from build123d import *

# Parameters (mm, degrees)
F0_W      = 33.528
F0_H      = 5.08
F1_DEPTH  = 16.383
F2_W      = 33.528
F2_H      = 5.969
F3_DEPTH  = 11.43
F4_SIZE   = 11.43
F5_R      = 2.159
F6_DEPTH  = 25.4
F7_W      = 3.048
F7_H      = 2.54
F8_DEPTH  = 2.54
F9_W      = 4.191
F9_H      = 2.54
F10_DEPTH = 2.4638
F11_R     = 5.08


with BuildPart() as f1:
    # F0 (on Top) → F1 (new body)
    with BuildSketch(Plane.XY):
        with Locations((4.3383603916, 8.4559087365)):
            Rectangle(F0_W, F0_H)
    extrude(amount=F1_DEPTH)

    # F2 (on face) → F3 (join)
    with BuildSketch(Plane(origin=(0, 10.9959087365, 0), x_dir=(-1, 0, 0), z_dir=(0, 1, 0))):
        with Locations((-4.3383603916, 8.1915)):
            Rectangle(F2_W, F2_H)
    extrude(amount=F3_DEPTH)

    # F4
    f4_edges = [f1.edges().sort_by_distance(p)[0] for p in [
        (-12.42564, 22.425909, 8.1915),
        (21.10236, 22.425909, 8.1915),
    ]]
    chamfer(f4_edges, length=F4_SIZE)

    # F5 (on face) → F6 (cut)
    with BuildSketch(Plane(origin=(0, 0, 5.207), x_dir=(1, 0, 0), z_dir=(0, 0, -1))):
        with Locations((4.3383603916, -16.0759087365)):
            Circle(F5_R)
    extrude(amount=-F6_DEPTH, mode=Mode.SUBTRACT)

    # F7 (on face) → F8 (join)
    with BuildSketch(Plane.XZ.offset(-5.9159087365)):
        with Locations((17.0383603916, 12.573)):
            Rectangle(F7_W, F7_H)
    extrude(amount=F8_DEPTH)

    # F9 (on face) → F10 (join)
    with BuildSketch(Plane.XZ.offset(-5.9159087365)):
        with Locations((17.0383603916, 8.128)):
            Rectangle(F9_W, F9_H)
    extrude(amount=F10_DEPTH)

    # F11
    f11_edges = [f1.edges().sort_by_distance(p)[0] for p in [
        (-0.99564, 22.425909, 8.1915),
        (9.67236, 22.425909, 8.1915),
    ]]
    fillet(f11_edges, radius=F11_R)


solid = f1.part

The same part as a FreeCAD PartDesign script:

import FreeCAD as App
import Part
import Sketcher
from FreeCAD import Vector
Q = App.Units.Quantity


def edges_at(feature, points):
    """Names of the edges that pass closest to the given points."""
    edges = feature.Shape.Edges
    near = lambda p: min(range(len(edges)), key=lambda i: edges[i].distToShape(Part.Vertex(*p))[0])
    return sorted({f"Edge{near(p) + 1}" for p in points})


def add_polygon(sketch, points):
    """Adds a closed chain of lines whose ends are joined by coincident constraints."""
    first, n = sketch.GeometryCount, len(points)
    for a, b in zip(points, points[1:] + points[:1]):
        sketch.addGeometry(Part.LineSegment(App.Vector(*a, 0), App.Vector(*b, 0)), False)
    for i in range(n):
        sketch.addConstraint(Sketcher.Constraint("Coincident", first + i, 2, first + (i + 1) % n, 1))

doc = App.newDocument("Part")
params = doc.addObject("Spreadsheet::Sheet", "Params")
for row, (alias, value) in enumerate([
    ("sketch1_height", "0.2 in"),
    ("sketch1_width", "1.32 in"),
    ("pad1_length", "0.645 in"),
    ("sketch2_width", "1.32 in"),
    ("sketch2_height", "0.235 in"),
    ("pad2_length", "0.45 in"),
    ("chamfer_size", "0.45 in"),
    ("sketch3_diameter", "0.17 in"),
    ("pocket1_length", "1 in"),
    ("sketch4_height", "0.1 in"),
    ("sketch4_width", "0.12 in"),
    ("pad3_length", "0.1 in"),
    ("sketch5_height", "0.1 in"),
    ("sketch5_width", "0.165 in"),
    ("pad4_length", "0.097 in"),
    ("fillet_radius", "0.2 in"),
], start=1):
    params.set(f"A{row}", alias)
    params.set(f"B{row}", "=" + value)
    params.setAlias(f"B{row}", alias)

body = doc.addObject("PartDesign::Body", "Body")

# Sketch on XY plane
sketch1 = doc.addObject("Sketcher::SketchObject", "Sketch")
body.addObject(sketch1)
sketch1.AttachmentSupport = (doc.XY_Plane, [""])
sketch1.MapMode = "FlatFace"
add_polygon(sketch1, [(-12, 11), (-12, 6), (21, 6), (21, 11)])  # lines 0-3
sketch1.addConstraint(Sketcher.Constraint("Vertical", 0))
sketch1.addConstraint(Sketcher.Constraint("Horizontal", 1))
sketch1.addConstraint(Sketcher.Constraint("Vertical", 2))
sketch1.addConstraint(Sketcher.Constraint("Horizontal", 3))
sketch1.addConstraint(Sketcher.Constraint("DistanceY", 0, 2, 0, 1, Q("0.2 in")))
sketch1.addConstraint(Sketcher.Constraint("DistanceX", 1, 1, 1, 2, Q("1.32 in")))
sketch1.addConstraint(Sketcher.Constraint("DistanceX", 0, 2, -1, 1, 12.42564))
sketch1.addConstraint(Sketcher.Constraint("DistanceY", -1, 1, 0, 2, 5.915909))
sketch1.setExpression("Constraints[8]", "Params.sketch1_height")
sketch1.setExpression("Constraints[9]", "Params.sketch1_width")
pad1 = doc.addObject("PartDesign::Pad", "Pad")
body.addObject(pad1)
pad1.Profile = sketch1
pad1.setExpression("Length", "Params.pad1_length")

# Sketch on XZ plane
sketch2 = doc.addObject("Sketcher::SketchObject", "Sketch001")
body.addObject(sketch2)
sketch2.AttachmentSupport = (doc.XZ_Plane, [""])
sketch2.MapMode = "FlatFace"
sketch2.AttachmentOffset = App.Placement(Vector(0, 0, -10.995909), App.Rotation())
add_polygon(sketch2, [(21, 11), (21, 5), (-12, 5), (-12, 11)])  # lines 0-3
sketch2.addConstraint(Sketcher.Constraint("Vertical", 0))
sketch2.addConstraint(Sketcher.Constraint("Horizontal", 1))
sketch2.addConstraint(Sketcher.Constraint("Vertical", 2))
sketch2.addConstraint(Sketcher.Constraint("Horizontal", 3))
sketch2.addConstraint(Sketcher.Constraint("DistanceX", 1, 2, 1, 1, Q("1.32 in")))
sketch2.addConstraint(Sketcher.Constraint("DistanceY", 0, 2, 0, 1, Q("0.235 in")))
sketch2.addConstraint(Sketcher.Constraint("DistanceY", -1, 1, 2, 2, Q("0.44 in")))
sketch2.addConstraint(Sketcher.Constraint("DistanceX", -1, 1, 0, 2, 21.10236))
sketch2.setExpression("Constraints[8]", "Params.sketch2_width")
sketch2.setExpression("Constraints[9]", "Params.sketch2_height")
pad2 = doc.addObject("PartDesign::Pad", "Pad001")
body.addObject(pad2)
pad2.Profile = sketch2
pad2.setExpression("Length", "Params.pad2_length")
pad2.Reversed = True
doc.recompute()

chamfer = doc.addObject("PartDesign::Chamfer", "Chamfer")
body.addObject(chamfer)
chamfer.Base = (pad2, edges_at(pad2, [(-12.426, 22.426, 8.191), (21.102, 22.426, 8.191)]))
chamfer.setExpression("Size", "Params.chamfer_size")

# Sketch on XY plane
sketch3 = doc.addObject("Sketcher::SketchObject", "Sketch002")
body.addObject(sketch3)
sketch3.AttachmentSupport = (doc.XY_Plane, [""])
sketch3.MapMode = "FlatFace"
sketch3.AttachmentOffset = App.Placement(Vector(0, 0, 0.205 * 25.4), App.Rotation())
sketch3.addGeometry(Part.Circle(Vector(4.3, 16.1, 0), Vector(0, 0, 1), 2.2), False)
sketch3.addConstraint(Sketcher.Constraint("Diameter", 0, Q("0.17 in")))
sketch3.addConstraint(Sketcher.Constraint("DistanceX", -1, 1, 0, 3, 4.33836))
sketch3.addConstraint(Sketcher.Constraint("DistanceY", -1, 1, 0, 3, 16.075909))
sketch3.setExpression("Constraints[0]", "Params.sketch3_diameter")
pocket1 = doc.addObject("PartDesign::Pocket", "Pocket")
body.addObject(pocket1)
pocket1.Profile = sketch3
pocket1.setExpression("Length", "Params.pocket1_length")
pocket1.Reversed = True

# Sketch on XZ plane
sketch4 = doc.addObject("Sketcher::SketchObject", "Sketch003")
body.addObject(sketch4)
sketch4.AttachmentSupport = (doc.XZ_Plane, [""])
sketch4.MapMode = "FlatFace"
sketch4.AttachmentOffset = App.Placement(Vector(0, 0, -5.915909), App.Rotation())
add_polygon(sketch4, [(15.5, 13.8), (15.5, 11.3), (18.6, 11.3), (18.6, 13.8)])  # lines 0-3
sketch4.addConstraint(Sketcher.Constraint("Vertical", 0))
sketch4.addConstraint(Sketcher.Constraint("Horizontal", 1))
sketch4.addConstraint(Sketcher.Constraint("Vertical", 2))
sketch4.addConstraint(Sketcher.Constraint("Horizontal", 3))
sketch4.addConstraint(Sketcher.Constraint("DistanceY", 0, 2, 0, 1, Q("0.1 in")))
sketch4.addConstraint(Sketcher.Constraint("DistanceX", 1, 1, 1, 2, Q("0.12 in")))
sketch4.addConstraint(Sketcher.Constraint("DistanceY", -1, 1, 0, 2, Q("0.445 in")))
sketch4.addConstraint(Sketcher.Constraint("DistanceX", -1, 1, 0, 2, 15.51436))
sketch4.setExpression("Constraints[8]", "Params.sketch4_height")
sketch4.setExpression("Constraints[9]", "Params.sketch4_width")
pad3 = doc.addObject("PartDesign::Pad", "Pad002")
body.addObject(pad3)
pad3.Profile = sketch4
pad3.setExpression("Length", "Params.pad3_length")

# Sketch on XZ plane
sketch5 = doc.addObject("Sketcher::SketchObject", "Sketch004")
body.addObject(sketch5)
sketch5.AttachmentSupport = (doc.XZ_Plane, [""])
sketch5.MapMode = "FlatFace"
sketch5.AttachmentOffset = App.Placement(Vector(0, 0, -5.915909), App.Rotation())
add_polygon(sketch5, [(14.9, 9.4), (14.9, 6.9), (19.1, 6.9), (19.1, 9.4)])  # lines 0-3
sketch5.addConstraint(Sketcher.Constraint("Vertical", 0))
sketch5.addConstraint(Sketcher.Constraint("Horizontal", 1))
sketch5.addConstraint(Sketcher.Constraint("Vertical", 2))
sketch5.addConstraint(Sketcher.Constraint("Horizontal", 3))
sketch5.addConstraint(Sketcher.Constraint("DistanceY", 0, 2, 0, 1, Q("0.1 in")))
sketch5.addConstraint(Sketcher.Constraint("DistanceX", 1, 1, 1, 2, Q("0.165 in")))
sketch5.addConstraint(Sketcher.Constraint("DistanceY", -1, 1, 0, 2, Q("0.27 in")))
sketch5.addConstraint(Sketcher.Constraint("DistanceX", -1, 1, 0, 2, 14.94286))
sketch5.setExpression("Constraints[8]", "Params.sketch5_height")
sketch5.setExpression("Constraints[9]", "Params.sketch5_width")
pad4 = doc.addObject("PartDesign::Pad", "Pad003")
body.addObject(pad4)
pad4.Profile = sketch5
pad4.setExpression("Length", "Params.pad4_length")
doc.recompute()

fillet = doc.addObject("PartDesign::Fillet", "Fillet")
body.addObject(fillet)
fillet.Base = (pad4, edges_at(pad4, [(-0.996, 22.426, 8.191), (9.672, 22.426, 8.191)]))
fillet.setExpression("Radius", "Params.fillet_radius")

doc.recompute()
